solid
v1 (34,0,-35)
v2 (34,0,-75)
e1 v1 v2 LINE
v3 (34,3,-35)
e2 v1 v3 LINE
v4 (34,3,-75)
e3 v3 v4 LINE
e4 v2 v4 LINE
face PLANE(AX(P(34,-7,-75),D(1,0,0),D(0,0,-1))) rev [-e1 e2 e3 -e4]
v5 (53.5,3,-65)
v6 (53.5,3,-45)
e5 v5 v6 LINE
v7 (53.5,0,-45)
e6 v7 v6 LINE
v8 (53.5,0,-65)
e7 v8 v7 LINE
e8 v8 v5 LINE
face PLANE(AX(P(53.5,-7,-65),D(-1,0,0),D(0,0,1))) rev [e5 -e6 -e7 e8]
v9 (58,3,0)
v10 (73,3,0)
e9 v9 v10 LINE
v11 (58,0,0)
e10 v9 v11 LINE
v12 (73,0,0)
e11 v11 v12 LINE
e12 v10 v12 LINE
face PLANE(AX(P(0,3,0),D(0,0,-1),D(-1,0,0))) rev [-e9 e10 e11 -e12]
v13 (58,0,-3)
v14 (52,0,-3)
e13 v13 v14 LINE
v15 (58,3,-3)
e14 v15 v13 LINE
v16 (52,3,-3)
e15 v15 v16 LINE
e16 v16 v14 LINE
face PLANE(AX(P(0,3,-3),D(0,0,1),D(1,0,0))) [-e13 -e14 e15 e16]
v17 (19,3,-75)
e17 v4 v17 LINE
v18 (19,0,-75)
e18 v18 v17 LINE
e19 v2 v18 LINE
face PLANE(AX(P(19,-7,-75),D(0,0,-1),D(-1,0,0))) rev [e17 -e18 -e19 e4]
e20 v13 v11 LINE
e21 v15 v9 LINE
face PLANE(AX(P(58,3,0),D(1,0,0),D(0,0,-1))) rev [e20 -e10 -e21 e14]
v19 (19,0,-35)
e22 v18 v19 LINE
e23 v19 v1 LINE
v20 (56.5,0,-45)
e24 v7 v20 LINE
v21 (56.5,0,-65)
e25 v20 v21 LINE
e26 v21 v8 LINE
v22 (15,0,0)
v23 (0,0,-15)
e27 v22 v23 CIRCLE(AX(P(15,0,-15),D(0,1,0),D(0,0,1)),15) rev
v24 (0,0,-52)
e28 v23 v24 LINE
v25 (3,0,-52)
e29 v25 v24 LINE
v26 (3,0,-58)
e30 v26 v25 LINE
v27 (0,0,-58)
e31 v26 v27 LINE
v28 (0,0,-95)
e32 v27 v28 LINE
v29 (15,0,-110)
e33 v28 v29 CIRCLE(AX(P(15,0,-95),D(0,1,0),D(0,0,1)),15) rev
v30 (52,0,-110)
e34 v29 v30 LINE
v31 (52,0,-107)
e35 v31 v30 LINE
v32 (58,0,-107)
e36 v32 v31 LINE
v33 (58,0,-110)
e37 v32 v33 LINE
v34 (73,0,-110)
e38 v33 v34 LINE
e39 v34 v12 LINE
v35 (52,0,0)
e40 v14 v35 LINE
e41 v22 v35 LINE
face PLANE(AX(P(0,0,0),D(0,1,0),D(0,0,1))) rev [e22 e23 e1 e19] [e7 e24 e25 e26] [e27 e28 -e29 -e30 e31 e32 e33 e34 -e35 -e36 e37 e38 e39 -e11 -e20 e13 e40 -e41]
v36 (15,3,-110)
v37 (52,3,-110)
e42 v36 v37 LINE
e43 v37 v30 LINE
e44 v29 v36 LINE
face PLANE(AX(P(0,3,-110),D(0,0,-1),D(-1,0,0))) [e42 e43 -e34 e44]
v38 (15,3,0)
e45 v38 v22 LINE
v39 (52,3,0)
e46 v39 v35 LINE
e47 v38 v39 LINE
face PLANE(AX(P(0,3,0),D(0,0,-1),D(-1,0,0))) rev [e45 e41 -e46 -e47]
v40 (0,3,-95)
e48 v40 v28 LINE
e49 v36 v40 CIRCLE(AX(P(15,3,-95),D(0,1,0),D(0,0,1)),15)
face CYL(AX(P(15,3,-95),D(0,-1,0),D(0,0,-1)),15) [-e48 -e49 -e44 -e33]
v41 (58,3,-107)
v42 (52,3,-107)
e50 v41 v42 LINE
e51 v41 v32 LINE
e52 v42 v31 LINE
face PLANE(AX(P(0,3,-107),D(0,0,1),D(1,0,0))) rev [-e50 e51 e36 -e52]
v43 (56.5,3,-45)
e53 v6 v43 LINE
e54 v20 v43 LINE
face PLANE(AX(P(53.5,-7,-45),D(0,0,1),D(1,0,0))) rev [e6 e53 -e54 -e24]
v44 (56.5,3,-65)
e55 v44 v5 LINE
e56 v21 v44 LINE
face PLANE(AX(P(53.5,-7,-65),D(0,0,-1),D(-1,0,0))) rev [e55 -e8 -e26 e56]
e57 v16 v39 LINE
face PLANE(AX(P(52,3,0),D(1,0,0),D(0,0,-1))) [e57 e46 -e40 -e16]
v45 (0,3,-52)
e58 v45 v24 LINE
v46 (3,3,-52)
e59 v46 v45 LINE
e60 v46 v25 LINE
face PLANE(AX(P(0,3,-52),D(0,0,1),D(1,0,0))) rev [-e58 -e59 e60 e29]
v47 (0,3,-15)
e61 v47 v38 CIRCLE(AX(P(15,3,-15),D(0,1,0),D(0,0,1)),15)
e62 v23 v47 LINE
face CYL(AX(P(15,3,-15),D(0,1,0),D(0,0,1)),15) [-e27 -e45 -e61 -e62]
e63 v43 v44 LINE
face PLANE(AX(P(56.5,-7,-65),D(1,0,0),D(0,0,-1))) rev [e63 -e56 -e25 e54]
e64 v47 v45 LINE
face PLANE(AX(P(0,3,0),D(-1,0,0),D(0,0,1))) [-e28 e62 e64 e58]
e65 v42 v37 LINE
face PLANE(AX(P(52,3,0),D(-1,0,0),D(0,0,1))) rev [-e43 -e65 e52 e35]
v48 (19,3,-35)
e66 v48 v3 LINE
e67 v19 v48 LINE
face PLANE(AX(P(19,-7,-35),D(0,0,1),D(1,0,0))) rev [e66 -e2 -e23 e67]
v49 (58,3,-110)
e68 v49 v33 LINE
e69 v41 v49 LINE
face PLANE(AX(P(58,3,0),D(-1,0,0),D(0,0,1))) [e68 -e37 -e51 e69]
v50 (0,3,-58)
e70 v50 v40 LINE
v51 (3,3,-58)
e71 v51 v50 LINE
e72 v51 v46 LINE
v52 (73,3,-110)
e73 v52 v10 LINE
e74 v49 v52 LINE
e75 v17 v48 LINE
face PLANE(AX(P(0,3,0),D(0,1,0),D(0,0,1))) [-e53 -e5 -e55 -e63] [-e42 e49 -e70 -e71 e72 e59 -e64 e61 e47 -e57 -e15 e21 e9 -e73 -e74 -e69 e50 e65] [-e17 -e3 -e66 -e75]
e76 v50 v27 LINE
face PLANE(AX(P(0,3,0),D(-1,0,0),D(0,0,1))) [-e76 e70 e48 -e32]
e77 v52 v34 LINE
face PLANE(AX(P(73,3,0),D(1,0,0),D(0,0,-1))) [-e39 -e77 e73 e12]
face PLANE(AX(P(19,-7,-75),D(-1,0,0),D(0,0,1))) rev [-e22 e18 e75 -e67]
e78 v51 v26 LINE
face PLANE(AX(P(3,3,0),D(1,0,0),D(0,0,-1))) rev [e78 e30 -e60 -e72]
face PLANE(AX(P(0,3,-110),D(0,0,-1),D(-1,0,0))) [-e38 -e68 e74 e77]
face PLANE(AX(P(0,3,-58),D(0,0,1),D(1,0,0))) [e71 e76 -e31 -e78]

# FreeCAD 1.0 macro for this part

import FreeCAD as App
import Part
import Sketcher

V = App.Vector


def edges_at(feature, points):
    """Names of the edges that pass closest to the given points."""
    edges = feature.Shape.Edges
    near = lambda p: min(range(len(edges)), key=lambda i: edges[i].distToShape(Part.Vertex(*p))[0])
    return sorted({f"Edge{near(p) + 1}" for p in points})

doc = App.newDocument("Part")
body = doc.addObject("PartDesign::Body", "Body")

sketch1 = doc.addObject("Sketcher::SketchObject", "Sketch")
body.addObject(sketch1)
sketch1.AttachmentSupport = (doc.XZ_Plane, [""])
sketch1.MapMode = "FlatFace"
sketch1.addGeometry(Part.LineSegment(V(0, -110, 0), V(0, -58, 0)), False)
sketch1.addGeometry(Part.LineSegment(V(0, -58, 0), V(3, -58, 0)), False)
sketch1.addGeometry(Part.LineSegment(V(3, -58, 0), V(3, -52, 0)), False)
sketch1.addGeometry(Part.LineSegment(V(3, -52, 0), V(0, -52, 0)), False)
sketch1.addGeometry(Part.LineSegment(V(0, -52, 0), V(0, 0, 0)), False)
sketch1.addGeometry(Part.LineSegment(V(0, 0, 0), V(52, 0, 0)), False)
sketch1.addGeometry(Part.LineSegment(V(52, 0, 0), V(52, -3, 0)), False)
sketch1.addGeometry(Part.LineSegment(V(52, -3, 0), V(58, -3, 0)), False)
sketch1.addGeometry(Part.LineSegment(V(58, -3, 0), V(58, 0, 0)), False)
sketch1.addGeometry(Part.LineSegment(V(58, 0, 0), V(73, 0, 0)), False)
sketch1.addGeometry(Part.LineSegment(V(73, 0, 0), V(73, -110, 0)), False)
sketch1.addGeometry(Part.LineSegment(V(73, -110, 0), V(58, -110, 0)), False)
sketch1.addGeometry(Part.LineSegment(V(58, -110, 0), V(58, -107, 0)), False)
sketch1.addGeometry(Part.LineSegment(V(58, -107, 0), V(52, -107, 0)), False)
sketch1.addGeometry(Part.LineSegment(V(52, -107, 0), V(52, -110, 0)), False)
sketch1.addGeometry(Part.LineSegment(V(52, -110, 0), V(0, -110, 0)), False)
sketch1.addConstraint(Sketcher.Constraint("Coincident", 0, 2, 1, 1))
sketch1.addConstraint(Sketcher.Constraint("Coincident", 1, 2, 2, 1))
sketch1.addConstraint(Sketcher.Constraint("Coincident", 2, 2, 3, 1))
sketch1.addConstraint(Sketcher.Constraint("Coincident", 3, 2, 4, 1))
sketch1.addConstraint(Sketcher.Constraint("Coincident", 4, 2, 5, 1))
sketch1.addConstraint(Sketcher.Constraint("Coincident", 5, 2, 6, 1))
sketch1.addConstraint(Sketcher.Constraint("Coincident", 6, 2, 7, 1))
sketch1.addConstraint(Sketcher.Constraint("Coincident", 7, 2, 8, 1))
sketch1.addConstraint(Sketcher.Constraint("Coincident", 8, 2, 9, 1))
sketch1.addConstraint(Sketcher.Constraint("Coincident", 9, 2, 10, 1))
sketch1.addConstraint(Sketcher.Constraint("Coincident", 10, 2, 11, 1))
sketch1.addConstraint(Sketcher.Constraint("Coincident", 11, 2, 12, 1))
sketch1.addConstraint(Sketcher.Constraint("Coincident", 12, 2, 13, 1))
sketch1.addConstraint(Sketcher.Constraint("Coincident", 13, 2, 14, 1))
sketch1.addConstraint(Sketcher.Constraint("Coincident", 14, 2, 15, 1))
sketch1.addConstraint(Sketcher.Constraint("Coincident", 15, 2, 0, 1))
sketch1.addConstraint(Sketcher.Constraint("Vertical", 0))
sketch1.addConstraint(Sketcher.Constraint("Horizontal", 1))
sketch1.addConstraint(Sketcher.Constraint("Vertical", 2))
sketch1.addConstraint(Sketcher.Constraint("Horizontal", 3))
sketch1.addConstraint(Sketcher.Constraint("Vertical", 4))
sketch1.addConstraint(Sketcher.Constraint("Horizontal", 5))
sketch1.addConstraint(Sketcher.Constraint("Vertical", 6))
sketch1.addConstraint(Sketcher.Constraint("Horizontal", 7))
sketch1.addConstraint(Sketcher.Constraint("Vertical", 8))
sketch1.addConstraint(Sketcher.Constraint("Horizontal", 9))
sketch1.addConstraint(Sketcher.Constraint("Vertical", 10))
sketch1.addConstraint(Sketcher.Constraint("Horizontal", 11))
sketch1.addConstraint(Sketcher.Constraint("Vertical", 12))
sketch1.addConstraint(Sketcher.Constraint("Horizontal", 13))
sketch1.addConstraint(Sketcher.Constraint("Vertical", 14))
sketch1.addConstraint(Sketcher.Constraint("Horizontal", 15))
sketch1.addConstraint(Sketcher.Constraint("Coincident", 4, 2, -1, 1))
sketch1.addConstraint(Sketcher.Constraint("PointOnObject", 0, 2, -2))
sketch1.addConstraint(Sketcher.Constraint("PointOnObject", 8, 2, -1))
sketch1.addConstraint(Sketcher.Constraint("Horizontal", 11, 2, 14, 2))
sketch1.addConstraint(Sketcher.Constraint("Vertical", 8, 2, 11, 2))
sketch1.addConstraint(Sketcher.Constraint("Vertical", 6, 2, 13, 2))
sketch1.addConstraint(Sketcher.Constraint("Equal", 15, 0))
sketch1.addConstraint(Sketcher.Constraint("Equal", 13, 2))
sketch1.addConstraint(Sketcher.Constraint("Equal", 0, 4))
sketch1.addConstraint(Sketcher.Constraint("Equal", 3, 6))
sketch1.addConstraint(Sketcher.Constraint("Equal", 8, 12))
sketch1.addConstraint(Sketcher.Constraint("DistanceX", 1, 1, 1, 2, 3.0))
sketch1.addConstraint(Sketcher.Constraint("DistanceX", 5, 1, 5, 2, 52.0))
sketch1.addConstraint(Sketcher.Constraint("DistanceX", 7, 1, 7, 2, 6.0))
sketch1.addConstraint(Sketcher.Constraint("DistanceX", 9, 1, 9, 2, 15.0))
pad1 = doc.addObject("PartDesign::Pad", "Pad")
body.addObject(pad1)
pad1.Profile = sketch1
pad1.Length = 3
pad1.Reversed = True

sketch2 = doc.addObject("Sketcher::SketchObject", "Sketch001")
body.addObject(sketch2)
sketch2.AttachmentSupport = (doc.XZ_Plane, [""])
sketch2.MapMode = "FlatFace"
sketch2.AttachmentOffset = App.Placement(V(0, 0, -3), App.Rotation())
sketch2.addGeometry(Part.LineSegment(V(19, -75, 0), V(19, -35, 0)), False)
sketch2.addGeometry(Part.LineSegment(V(19, -35, 0), V(34, -35, 0)), False)
sketch2.addGeometry(Part.LineSegment(V(34, -35, 0), V(34, -75, 0)), False)
sketch2.addGeometry(Part.LineSegment(V(34, -75, 0), V(19, -75, 0)), False)
sketch2.addGeometry(Part.LineSegment(V(53.5, -65, 0), V(53.5, -45, 0)), False)
sketch2.addGeometry(Part.LineSegment(V(53.5, -45, 0), V(56.5, -45, 0)), False)
sketch2.addGeometry(Part.LineSegment(V(56.5, -45, 0), V(56.5, -65, 0)), False)
sketch2.addGeometry(Part.LineSegment(V(56.5, -65, 0), V(53.5, -65, 0)), False)
sketch2.addConstraint(Sketcher.Constraint("Coincident", 0, 2, 1, 1))
sketch2.addConstraint(Sketcher.Constraint("Coincident", 1, 2, 2, 1))
sketch2.addConstraint(Sketcher.Constraint("Coincident", 2, 2, 3, 1))
sketch2.addConstraint(Sketcher.Constraint("Coincident", 3, 2, 0, 1))
sketch2.addConstraint(Sketcher.Constraint("Coincident", 4, 2, 5, 1))
sketch2.addConstraint(Sketcher.Constraint("Coincident", 5, 2, 6, 1))
sketch2.addConstraint(Sketcher.Constraint("Coincident", 6, 2, 7, 1))
sketch2.addConstraint(Sketcher.Constraint("Coincident", 7, 2, 4, 1))
sketch2.addConstraint(Sketcher.Constraint("Vertical", 0))
sketch2.addConstraint(Sketcher.Constraint("Horizontal", 1))
sketch2.addConstraint(Sketcher.Constraint("Vertical", 2))
sketch2.addConstraint(Sketcher.Constraint("Horizontal", 3))
sketch2.addConstraint(Sketcher.Constraint("Vertical", 4))
sketch2.addConstraint(Sketcher.Constraint("Horizontal", 5))
sketch2.addConstraint(Sketcher.Constraint("Vertical", 6))
sketch2.addConstraint(Sketcher.Constraint("Horizontal", 7))
sketch2.addConstraint(Sketcher.Constraint("DistanceX", 1, 1, 1, 2, 15.0))
sketch2.addConstraint(Sketcher.Constraint("DistanceX", 5, 1, 5, 2, 3.0))
sketch2.addConstraint(Sketcher.Constraint("DistanceY", 0, 1, 0, 2, 40.0))
sketch2.addConstraint(Sketcher.Constraint("DistanceY", 4, 1, 4, 2, 20.0))
sketch2.addConstraint(Sketcher.Constraint("DistanceX", -1, 1, 0, 2, 19.0))
sketch2.addConstraint(Sketcher.Constraint("DistanceY", 0, 2, -1, 1, 35.0))
sketch2.addConstraint(Sketcher.Constraint("DistanceY", 4, 2, -1, 1, 45.0))
sketch2.addConstraint(Sketcher.Constraint("DistanceX", -1, 1, 4, 2, 53.5))
pocket1 = doc.addObject("PartDesign::Pocket", "Pocket")
body.addObject(pocket1)
pocket1.Profile = sketch2
pocket1.Length = 10
pocket1.Reversed = True
doc.recompute()

fillet = doc.addObject("PartDesign::Fillet", "Fillet")
body.addObject(fillet)
fillet.Base = (pocket1, edges_at(pocket1, [(0, 1.5, 0), (0, 1.5, -110)]))
fillet.Radius = 15

doc.recompute()
